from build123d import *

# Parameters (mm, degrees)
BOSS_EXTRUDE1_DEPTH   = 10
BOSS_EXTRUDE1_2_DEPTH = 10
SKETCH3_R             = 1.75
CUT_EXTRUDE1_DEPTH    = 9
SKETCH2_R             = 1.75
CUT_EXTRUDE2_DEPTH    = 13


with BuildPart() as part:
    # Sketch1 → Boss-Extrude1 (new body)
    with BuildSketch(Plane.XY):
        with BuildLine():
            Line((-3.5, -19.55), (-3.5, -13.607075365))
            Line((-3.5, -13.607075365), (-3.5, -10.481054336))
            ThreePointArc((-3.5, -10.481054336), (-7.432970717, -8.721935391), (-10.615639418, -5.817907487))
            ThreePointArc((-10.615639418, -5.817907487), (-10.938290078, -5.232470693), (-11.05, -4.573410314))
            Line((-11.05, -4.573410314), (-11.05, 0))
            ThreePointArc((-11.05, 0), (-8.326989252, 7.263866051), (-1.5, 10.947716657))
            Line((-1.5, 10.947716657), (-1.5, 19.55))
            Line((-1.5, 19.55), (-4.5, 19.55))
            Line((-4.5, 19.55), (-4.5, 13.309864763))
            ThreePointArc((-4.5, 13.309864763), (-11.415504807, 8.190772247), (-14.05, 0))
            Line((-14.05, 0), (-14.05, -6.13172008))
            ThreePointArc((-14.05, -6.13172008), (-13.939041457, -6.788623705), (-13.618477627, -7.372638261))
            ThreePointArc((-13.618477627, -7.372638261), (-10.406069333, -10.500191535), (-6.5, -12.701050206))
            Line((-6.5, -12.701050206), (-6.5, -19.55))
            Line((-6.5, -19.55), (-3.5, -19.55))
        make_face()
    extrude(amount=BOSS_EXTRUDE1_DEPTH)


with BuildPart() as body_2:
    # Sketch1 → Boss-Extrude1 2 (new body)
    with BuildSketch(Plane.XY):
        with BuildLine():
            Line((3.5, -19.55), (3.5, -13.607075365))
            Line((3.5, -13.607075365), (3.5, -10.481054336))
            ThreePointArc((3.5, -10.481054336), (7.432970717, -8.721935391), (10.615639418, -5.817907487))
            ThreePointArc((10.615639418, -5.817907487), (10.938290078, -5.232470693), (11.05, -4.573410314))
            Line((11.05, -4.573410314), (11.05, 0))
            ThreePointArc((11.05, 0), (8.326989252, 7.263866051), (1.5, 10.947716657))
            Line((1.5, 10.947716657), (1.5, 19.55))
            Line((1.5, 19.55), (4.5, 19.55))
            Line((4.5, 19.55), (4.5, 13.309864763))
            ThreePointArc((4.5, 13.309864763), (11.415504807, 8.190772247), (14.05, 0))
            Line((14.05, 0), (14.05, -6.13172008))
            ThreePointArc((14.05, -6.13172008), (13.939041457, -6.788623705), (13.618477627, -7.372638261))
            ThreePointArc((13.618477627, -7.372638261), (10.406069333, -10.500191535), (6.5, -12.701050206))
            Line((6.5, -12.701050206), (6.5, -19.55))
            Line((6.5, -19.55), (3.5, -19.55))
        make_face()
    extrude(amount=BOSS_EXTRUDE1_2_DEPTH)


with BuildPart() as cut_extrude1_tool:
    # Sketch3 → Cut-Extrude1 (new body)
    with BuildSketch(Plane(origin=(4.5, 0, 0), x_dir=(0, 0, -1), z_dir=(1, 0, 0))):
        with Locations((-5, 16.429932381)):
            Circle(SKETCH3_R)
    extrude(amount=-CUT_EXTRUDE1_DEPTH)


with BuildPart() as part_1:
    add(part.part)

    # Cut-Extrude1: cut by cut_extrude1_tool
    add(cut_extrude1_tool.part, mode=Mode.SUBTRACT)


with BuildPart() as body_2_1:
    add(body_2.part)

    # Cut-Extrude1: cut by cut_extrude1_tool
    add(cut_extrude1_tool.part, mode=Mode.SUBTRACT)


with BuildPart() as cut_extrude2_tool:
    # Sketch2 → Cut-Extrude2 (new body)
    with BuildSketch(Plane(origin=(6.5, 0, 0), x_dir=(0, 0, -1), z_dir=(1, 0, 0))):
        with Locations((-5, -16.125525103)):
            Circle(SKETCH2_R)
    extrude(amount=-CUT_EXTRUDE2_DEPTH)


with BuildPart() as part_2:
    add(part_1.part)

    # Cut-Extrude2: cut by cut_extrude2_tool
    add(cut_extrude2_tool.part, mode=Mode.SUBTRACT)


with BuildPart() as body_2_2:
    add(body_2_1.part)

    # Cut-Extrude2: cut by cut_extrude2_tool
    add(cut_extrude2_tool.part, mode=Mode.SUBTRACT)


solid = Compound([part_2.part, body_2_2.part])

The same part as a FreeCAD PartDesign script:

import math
import FreeCAD as App
import Part
import Sketcher

V = App.Vector

doc = App.newDocument("Part")
body = doc.addObject("PartDesign::Body", "Body")

sketch1 = doc.addObject("Sketcher::SketchObject", "Sketch")
body.addObject(sketch1)
sketch1.AttachmentSupport = (doc.XY_Plane, [""])
sketch1.MapMode = "FlatFace"
sketch1.addGeometry([
    Part.LineSegment(V(-3.5, -19.6, 0), V(-3.5, -10.5, 0)),
    Part.ArcOfCircle(Part.Circle(V(0, 2.6, 0), V(0, 0, 1), 13.6), math.radians(-142), math.radians(-105)),
    Part.ArcOfCircle(Part.Circle(V(-9.1, -4.6, 0), V(0, 0, 1), 2), math.radians(180), math.radians(218)),
    Part.LineSegment(V(-11.1, -4.6, 0), V(-11.1, 0, 0)),
    Part.ArcOfCircle(Part.Circle(V(0, 0, 0), V(0, 0, 1), 11), math.radians(98), math.radians(180)),
    Part.LineSegment(V(-1.5, 10.9, 0), V(-1.5, 19.6, 0)),
    Part.LineSegment(V(-1.5, 19.6, 0), V(-4.5, 19.6, 0)),
    Part.LineSegment(V(-4.5, 19.6, 0), V(-4.5, 13.3, 0)),
    Part.ArcOfCircle(Part.Circle(V(0, 0, 0), V(0, 0, 1), 14.1), math.radians(109), math.radians(180)),
    Part.LineSegment(V(-14.1, 0, 0), V(-14.1, -6.1, 0)),
    Part.ArcOfCircle(Part.Circle(V(-12, -6.1, 0), V(0, 0, 1), 2), math.radians(-180), math.radians(-142)),
    Part.ArcOfCircle(Part.Circle(V(0, 3.4, 0), V(0, 0, 1), 17.4), math.radians(-142), math.radians(-112)),
    Part.LineSegment(V(-6.5, -12.7, 0), V(-6.5, -19.6, 0)),
    Part.LineSegment(V(-6.5, -19.6, 0), V(-3.5, -19.6, 0)),
], False)
sketch1.addConstraint([
    Sketcher.Constraint("Coincident", 0, 2, 1, 2),
    Sketcher.Constraint("Tangent", 1, 1, 2, 2),
    Sketcher.Constraint("Tangent", 2, 1, 3, 1),
    Sketcher.Constraint("Tangent", 3, 2, 4, 2),
    Sketcher.Constraint("Coincident", 4, 1, 5, 1),
    Sketcher.Constraint("Coincident", 5, 2, 6, 1),
    Sketcher.Constraint("Coincident", 6, 2, 7, 1),
    Sketcher.Constraint("Coincident", 7, 2, 8, 1),
    Sketcher.Constraint("Tangent", 8, 2, 9, 1),
    Sketcher.Constraint("Tangent", 9, 2, 10, 1),
    Sketcher.Constraint("Tangent", 10, 2, 11, 1),
    Sketcher.Constraint("Coincident", 11, 2, 12, 1),
    Sketcher.Constraint("Coincident", 12, 2, 13, 1),
    Sketcher.Constraint("Coincident", 13, 2, 0, 1),
    Sketcher.Constraint("Vertical", 0),
    Sketcher.Constraint("Vertical", 3),
    Sketcher.Constraint("Vertical", 5),
    Sketcher.Constraint("Horizontal", 6),
    Sketcher.Constraint("Vertical", 7),
    Sketcher.Constraint("Vertical", 9),
    Sketcher.Constraint("Vertical", 12),
    Sketcher.Constraint("Horizontal", 13),
    Sketcher.Constraint("Coincident", 4, 3, -1, 1),
    Sketcher.Constraint("Coincident", 8, 3, -1, 1),
    Sketcher.Constraint("Equal", 2, 10),
    Sketcher.Constraint("PointOnObject", 1, 3, -2),
    Sketcher.Constraint("PointOnObject", 11, 3, -2),
    Sketcher.Constraint("Equal", 6, 13),
    Sketcher.Constraint("Radius", 2, 2.0),
    Sketcher.Constraint("DistanceX", 6, 2, 6, 1, 3.0),
    Sketcher.Constraint("Radius", 4, 11.05),
    Sketcher.Constraint("Radius", 8, 14.05),
    Sketcher.Constraint("DistanceX", 0, 2, -1, 1, 3.5),
    Sketcher.Constraint("DistanceX", 4, 1, -1, 1, 1.5),
    Sketcher.Constraint("DistanceY", -1, 1, 5, 2, 19.55),
    Sketcher.Constraint("DistanceY", 12, 2, -1, 1, 19.55),
    Sketcher.Constraint("Radius", 1, 13.560772),
    Sketcher.Constraint("Radius", 11, 17.365218),
    Sketcher.Constraint("DistanceY", 3, 1, 3, 2, 4.57341),
    Sketcher.Constraint("DistanceY", 9, 2, 9, 1, 6.13172),
])
pad1 = doc.addObject("PartDesign::Pad", "Pad")
body.addObject(pad1)
pad1.Profile = sketch1
pad1.Length = 10
body2 = doc.addObject("PartDesign::Body", "Body001")

sketch2 = doc.addObject("Sketcher::SketchObject", "Sketch001")
body2.addObject(sketch2)
sketch2.AttachmentSupport = (doc.getObject("XY_Plane001"), [""])
sketch2.MapMode = "FlatFace"
sketch2.addGeometry([
    Part.LineSegment(V(3.5, -10.5, 0), V(3.5, -19.6, 0)),
    Part.LineSegment(V(3.5, -19.6, 0), V(6.5, -19.6, 0)),
    Part.LineSegment(V(6.5, -19.6, 0), V(6.5, -12.7, 0)),
    Part.ArcOfCircle(Part.Circle(V(0, 3.4, 0), V(0, 0, 1), 17.4), math.radians(-68), math.radians(-38)),
    Part.ArcOfCircle(Part.Circle(V(12, -6.1, 0), V(0, 0, 1), 2), math.radians(-38), math.radians(0)),
    Part.LineSegment(V(14.1, -6.1, 0), V(14.1, 0, 0)),
    Part.ArcOfCircle(Part.Circle(V(0, 0, 0), V(0, 0, 1), 14.1), math.radians(0), math.radians(71)),
    Part.LineSegment(V(4.5, 13.3, 0), V(4.5, 19.6, 0)),
    Part.LineSegment(V(4.5, 19.6, 0), V(1.5, 19.6, 0)),
    Part.LineSegment(V(1.5, 19.6, 0), V(1.5, 10.9, 0)),
    Part.ArcOfCircle(Part.Circle(V(0, 0, 0), V(0, 0, 1), 11), math.radians(0), math.radians(82)),
    Part.LineSegment(V(11.1, 0, 0), V(11.1, -4.6, 0)),
    Part.ArcOfCircle(Part.Circle(V(9.1, -4.6, 0), V(0, 0, 1), 2), math.radians(-38), math.radians(0)),
    Part.ArcOfCircle(Part.Circle(V(0, 2.6, 0), V(0, 0, 1), 13.6), math.radians(-75), math.radians(-38)),
], False)
sketch2.addConstraint([
    Sketcher.Constraint("Coincident", 0, 2, 1, 1),
    Sketcher.Constraint("Coincident", 1, 2, 2, 1),
    Sketcher.Constraint("Coincident", 2, 2, 3, 1),
    Sketcher.Constraint("Tangent", 3, 2, 4, 1),
    Sketcher.Constraint("Tangent", 4, 2, 5, 1),
    Sketcher.Constraint("Tangent", 5, 2, 6, 1),
    Sketcher.Constraint("Coincident", 6, 2, 7, 1),
    Sketcher.Constraint("Coincident", 7, 2, 8, 1),
    Sketcher.Constraint("Coincident", 8, 2, 9, 1),
    Sketcher.Constraint("Coincident", 9, 2, 10, 2),
    Sketcher.Constraint("Tangent", 10, 1, 11, 1),
    Sketcher.Constraint("Tangent", 11, 2, 12, 2),
    Sketcher.Constraint("Tangent", 12, 1, 13, 2),
    Sketcher.Constraint("Coincident", 13, 1, 0, 1),
    Sketcher.Constraint("Vertical", 0),
    Sketcher.Constraint("Horizontal", 1),
    Sketcher.Constraint("Vertical", 2),
    Sketcher.Constraint("Vertical", 5),
    Sketcher.Constraint("Vertical", 7),
    Sketcher.Constraint("Horizontal", 8),
    Sketcher.Constraint("Vertical", 9),
    Sketcher.Constraint("Vertical", 11),
    Sketcher.Constraint("Coincident", 6, 3, -1, 1),
    Sketcher.Constraint("Coincident", 10, 3, -1, 1),
    Sketcher.Constraint("Equal", 4, 12),
    Sketcher.Constraint("PointOnObject", 3, 3, -2),
    Sketcher.Constraint("PointOnObject", 13, 3, -2),
    Sketcher.Constraint("Equal", 1, 8),
    Sketcher.Constraint("Radius", 4, 2.0),
    Sketcher.Constraint("DistanceX", 1, 1, 1, 2, 3.0),
    Sketcher.Constraint("Radius", 6, 14.05),
    Sketcher.Constraint("Radius", 10, 11.05),
    Sketcher.Constraint("DistanceX", -1, 1, 0, 2, 3.5),
    Sketcher.Constraint("DistanceX", -1, 1, 6, 2, 4.5),
    Sketcher.Constraint("DistanceY", 0, 2, -1, 1, 19.55),
    Sketcher.Constraint("DistanceY", -1, 1, 7, 2, 19.55),
    Sketcher.Constraint("Radius", 13, 13.560772),
    Sketcher.Constraint("Radius", 3, 17.365218),
    Sketcher.Constraint("DistanceY", 2, 1, 2, 2, 6.84895),
    Sketcher.Constraint("DistanceY", 11, 2, 11, 1, 4.57341),
])
pad2 = doc.addObject("PartDesign::Pad", "Pad001")
body2.addObject(pad2)
pad2.Profile = sketch2
pad2.Length = 10
body3 = doc.addObject("PartDesign::Body", "Body002")

sketch3 = doc.addObject("Sketcher::SketchObject", "Sketch002")
body3.addObject(sketch3)
sketch3.AttachmentSupport = (doc.getObject("YZ_Plane002"), [""])
sketch3.MapMode = "FlatFace"
sketch3.AttachmentOffset = App.Placement(V(0, 0, 4.5), App.Rotation())
sketch3.addGeometry(Part.Circle(V(16.4, 5, 0), V(0, 0, 1), 1.8), False)
sketch3.addConstraint([
    Sketcher.Constraint("Diameter", 0, 3.5),
    Sketcher.Constraint("DistanceY", -1, 1, 0, 3, 5.0),
    Sketcher.Constraint("DistanceX", -1, 1, 0, 3, 16.429932),
])
pad3 = doc.addObject("PartDesign::Pad", "Pad002")
body3.addObject(pad3)
pad3.Profile = sketch3
pad3.Length = 9
pad3.Reversed = True
doc.recompute()

body4 = doc.addObject("PartDesign::Body", "Body003")
body4.BaseFeature = body3
boolean = doc.addObject("PartDesign::Boolean", "Boolean")
body.addObject(boolean)
boolean.Type = "Cut"
boolean.addObjects([body4])
doc.recompute()

boolean2 = doc.addObject("PartDesign::Boolean", "Boolean001")
body2.addObject(boolean2)
boolean2.Type = "Cut"
boolean2.addObjects([body3])
body5 = doc.addObject("PartDesign::Body", "Body004")

sketch4 = doc.addObject("Sketcher::SketchObject", "Sketch003")
body5.addObject(sketch4)
sketch4.AttachmentSupport = (doc.getObject("YZ_Plane004"), [""])
sketch4.MapMode = "FlatFace"
sketch4.AttachmentOffset = App.Placement(V(0, 0, 6.5), App.Rotation())
sketch4.addGeometry(Part.Circle(V(-16.1, 5, 0), V(0, 0, 1), 1.8), False)
sketch4.addConstraint([
    Sketcher.Constraint("Diameter", 0, 3.5),
    Sketcher.Constraint("DistanceY", -1, 1, 0, 3, 5.0),
    Sketcher.Constraint("DistanceX", 0, 3, -1, 1, 16.125525),
])
pad4 = doc.addObject("PartDesign::Pad", "Pad003")
body5.addObject(pad4)
pad4.Profile = sketch4
pad4.Length = 13
pad4.Reversed = True
doc.recompute()

body6 = doc.addObject("PartDesign::Body", "Body005")
body6.BaseFeature = body5
boolean3 = doc.addObject("PartDesign::Boolean", "Boolean002")
body.addObject(boolean3)
boolean3.Type = "Cut"
boolean3.addObjects([body6])
doc.recompute()

boolean4 = doc.addObject("PartDesign::Boolean", "Boolean003")
body2.addObject(boolean4)
boolean4.Type = "Cut"
boolean4.addObjects([body5])

doc.recompute()
